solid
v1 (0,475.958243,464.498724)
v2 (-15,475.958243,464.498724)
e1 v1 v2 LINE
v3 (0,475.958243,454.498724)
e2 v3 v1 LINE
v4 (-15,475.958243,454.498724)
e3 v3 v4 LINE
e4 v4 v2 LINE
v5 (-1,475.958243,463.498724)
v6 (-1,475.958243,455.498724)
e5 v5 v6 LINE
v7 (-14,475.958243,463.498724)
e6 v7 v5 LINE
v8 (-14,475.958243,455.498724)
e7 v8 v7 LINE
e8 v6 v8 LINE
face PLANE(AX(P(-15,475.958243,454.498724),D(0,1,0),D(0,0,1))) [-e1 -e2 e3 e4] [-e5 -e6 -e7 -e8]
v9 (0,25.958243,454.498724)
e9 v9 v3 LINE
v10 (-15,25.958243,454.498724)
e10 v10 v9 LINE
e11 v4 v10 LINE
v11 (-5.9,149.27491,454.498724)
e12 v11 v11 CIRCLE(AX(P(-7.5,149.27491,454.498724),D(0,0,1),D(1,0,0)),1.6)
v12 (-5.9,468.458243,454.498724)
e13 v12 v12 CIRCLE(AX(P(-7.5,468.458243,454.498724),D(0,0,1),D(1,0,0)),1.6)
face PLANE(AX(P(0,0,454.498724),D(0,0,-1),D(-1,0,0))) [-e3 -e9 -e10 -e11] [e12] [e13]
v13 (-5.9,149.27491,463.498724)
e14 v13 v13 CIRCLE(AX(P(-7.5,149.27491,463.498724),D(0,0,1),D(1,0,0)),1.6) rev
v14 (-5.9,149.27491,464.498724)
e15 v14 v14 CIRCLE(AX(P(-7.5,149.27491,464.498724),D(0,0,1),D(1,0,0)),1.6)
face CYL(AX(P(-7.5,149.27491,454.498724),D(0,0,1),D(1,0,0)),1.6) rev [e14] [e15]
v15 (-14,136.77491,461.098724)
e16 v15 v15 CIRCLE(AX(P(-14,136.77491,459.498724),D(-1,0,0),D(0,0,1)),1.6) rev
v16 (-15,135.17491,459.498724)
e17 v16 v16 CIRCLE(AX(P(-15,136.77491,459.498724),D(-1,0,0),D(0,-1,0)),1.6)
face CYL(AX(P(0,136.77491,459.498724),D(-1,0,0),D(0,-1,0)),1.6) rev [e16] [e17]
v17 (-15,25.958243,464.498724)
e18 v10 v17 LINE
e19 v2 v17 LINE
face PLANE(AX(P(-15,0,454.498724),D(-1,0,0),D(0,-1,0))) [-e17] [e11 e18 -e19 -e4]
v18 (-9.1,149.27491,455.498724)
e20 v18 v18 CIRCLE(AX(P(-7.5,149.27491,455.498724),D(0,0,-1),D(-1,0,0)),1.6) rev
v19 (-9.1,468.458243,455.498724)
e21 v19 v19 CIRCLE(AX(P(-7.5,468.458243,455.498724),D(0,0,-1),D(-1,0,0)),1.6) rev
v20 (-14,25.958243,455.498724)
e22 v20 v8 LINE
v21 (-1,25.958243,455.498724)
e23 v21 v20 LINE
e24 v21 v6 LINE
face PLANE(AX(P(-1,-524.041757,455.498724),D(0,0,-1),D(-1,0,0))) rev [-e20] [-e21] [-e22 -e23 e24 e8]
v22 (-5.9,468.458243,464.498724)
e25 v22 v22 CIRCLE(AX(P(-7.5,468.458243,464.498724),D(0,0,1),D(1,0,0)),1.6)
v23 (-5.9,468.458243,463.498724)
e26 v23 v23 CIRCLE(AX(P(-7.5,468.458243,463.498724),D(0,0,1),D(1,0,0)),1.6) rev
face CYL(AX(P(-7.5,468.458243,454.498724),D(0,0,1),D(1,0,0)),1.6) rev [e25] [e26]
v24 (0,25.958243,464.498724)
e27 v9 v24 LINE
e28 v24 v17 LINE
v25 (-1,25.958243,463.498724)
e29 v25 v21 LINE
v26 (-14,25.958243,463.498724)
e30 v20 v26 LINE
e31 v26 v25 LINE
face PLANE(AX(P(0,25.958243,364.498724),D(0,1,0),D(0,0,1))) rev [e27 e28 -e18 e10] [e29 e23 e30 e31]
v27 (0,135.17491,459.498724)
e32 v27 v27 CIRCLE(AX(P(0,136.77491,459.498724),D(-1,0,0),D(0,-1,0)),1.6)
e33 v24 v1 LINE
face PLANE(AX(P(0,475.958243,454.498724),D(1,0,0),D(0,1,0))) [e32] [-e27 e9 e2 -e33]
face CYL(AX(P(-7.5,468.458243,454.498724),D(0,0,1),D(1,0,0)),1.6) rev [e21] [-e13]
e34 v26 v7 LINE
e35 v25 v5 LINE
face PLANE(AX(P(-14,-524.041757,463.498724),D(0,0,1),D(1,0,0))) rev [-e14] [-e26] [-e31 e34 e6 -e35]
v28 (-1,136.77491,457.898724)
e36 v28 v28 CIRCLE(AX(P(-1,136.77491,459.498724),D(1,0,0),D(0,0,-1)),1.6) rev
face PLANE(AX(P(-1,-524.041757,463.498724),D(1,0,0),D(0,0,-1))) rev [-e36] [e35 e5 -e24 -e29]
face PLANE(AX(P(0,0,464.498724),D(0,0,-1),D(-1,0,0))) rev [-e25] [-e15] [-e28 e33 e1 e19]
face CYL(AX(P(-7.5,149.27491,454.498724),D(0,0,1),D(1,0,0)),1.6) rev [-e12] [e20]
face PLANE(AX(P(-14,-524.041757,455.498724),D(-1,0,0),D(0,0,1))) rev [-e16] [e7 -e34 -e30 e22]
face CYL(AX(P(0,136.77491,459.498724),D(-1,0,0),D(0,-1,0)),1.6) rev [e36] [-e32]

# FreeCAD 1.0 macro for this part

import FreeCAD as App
import Part
import Sketcher

V = App.Vector
Q = App.Units.Quantity

doc = App.newDocument("Part")
body = doc.addObject("PartDesign::Body", "Body")

sketch1 = body.newObject("Sketcher::SketchObject", "Sketch")
sketch1.AttachmentSupport = (doc.getObject("XY_Plane"), [""])
sketch1.MapMode = "FlatFace"
sketch1.AttachmentOffset = App.Placement(V(0, 0, 464.498724), App.Rotation())
sketch1.addGeometry([
    Part.LineSegment(V(-15, 476, 0), V(-15, 0, 0)),
    Part.LineSegment(V(-15, 0, 0), V(0, 0, 0)),
    Part.LineSegment(V(0, 0, 0), V(0, 476, 0)),
    Part.LineSegment(V(0, 476, 0), V(-15, 476, 0)),
    Part.Circle(V(-7.5, 149.3, 0), V(0, 0, 1), 1.6),
    Part.Circle(V(-7.5, 468.5, 0), V(0, 0, 1), 1.6),
], False)
sketch1.addConstraint([
    Sketcher.Constraint("Coincident", 0, 2, 1, 1),
    Sketcher.Constraint("Coincident", 1, 2, 2, 1),
    Sketcher.Constraint("Coincident", 2, 2, 3, 1),
    Sketcher.Constraint("Coincident", 3, 2, 0, 1),
    Sketcher.Constraint("Vertical", 0),
    Sketcher.Constraint("Horizontal", 1),
    Sketcher.Constraint("Vertical", 2),
    Sketcher.Constraint("Horizontal", 3),
    Sketcher.Constraint("Coincident", 1, 2, -1, 1),
    Sketcher.Constraint("Equal", 4, 5),
    Sketcher.Constraint("Vertical", 4, 3, 5, 3),
    Sketcher.Constraint("Diameter", 4, Q("3.2 mm")),
    Sketcher.Constraint("DistanceX", 1, 1, 1, 2, Q("15 mm")),
    Sketcher.Constraint("DistanceX", 4, 3, -1, 1, Q("7.5 mm")),
    Sketcher.Constraint("DistanceY", 5, 3, 2, 2, Q("7.5 mm")),
    Sketcher.Constraint("DistanceY", 0, 2, 0, 1, Q("475.958243 mm")),
    Sketcher.Constraint("DistanceY", -1, 1, 4, 3, Q("149.27491 mm")),
])
pad1 = body.newObject("PartDesign::Pad", "Pad")
pad1.Profile = sketch1
pad1.Length = 10
pad1.Reversed = True

sketch2 = body.newObject("Sketcher::SketchObject", "Sketch001")
sketch2.AttachmentSupport = (doc.getObject("XY_Plane"), [""])
sketch2.MapMode = "FlatFace"
sketch2.AttachmentOffset = App.Placement(V(0, 0, 464.498724), App.Rotation())
sketch2.addGeometry([
    Part.LineSegment(V(-15, 26, 0), V(-15, 0, 0)),
    Part.LineSegment(V(-15, 0, 0), V(0, 0, 0)),
    Part.LineSegment(V(0, 0, 0), V(0, 26, 0)),
    Part.LineSegment(V(0, 26, 0), V(-15, 26, 0)),
], False)
sketch2.addConstraint([
    Sketcher.Constraint("Coincident", 0, 2, 1, 1),
    Sketcher.Constraint("Coincident", 1, 2, 2, 1),
    Sketcher.Constraint("Coincident", 2, 2, 3, 1),
    Sketcher.Constraint("Coincident", 3, 2, 0, 1),
    Sketcher.Constraint("Vertical", 0),
    Sketcher.Constraint("Horizontal", 1),
    Sketcher.Constraint("Vertical", 2),
    Sketcher.Constraint("Horizontal", 3),
    Sketcher.Constraint("Coincident", 1, 2, -1, 1),
    Sketcher.Constraint("DistanceX", 1, 1, 1, 2, Q("15 mm")),
    Sketcher.Constraint("DistanceY", 0, 2, 0, 1, Q("25.958243 mm")),
])
pocket1 = body.newObject("PartDesign::Pocket", "Pocket")
pocket1.Profile = sketch2
pocket1.Length = 100

sketch3 = body.newObject("Sketcher::SketchObject", "Sketch002")
sketch3.AttachmentSupport = (doc.getObject("YZ_Plane"), [""])
sketch3.MapMode = "FlatFace"
sketch3.AttachmentOffset = App.Placement(V(0, 0, -15), App.Rotation())
sketch3.addGeometry(Part.Circle(V(136.8, 459.5, 0), V(0, 0, 1), 1.6), False)
sketch3.addConstraint([
    Sketcher.Constraint("Diameter", 0, Q("3.2 mm")),
    Sketcher.Constraint("DistanceX", -1, 1, 0, 3, Q("136.77491 mm")),
    Sketcher.Constraint("DistanceY", -1, 1, 0, 3, Q("459.498724 mm")),
])
pocket2 = body.newObject("PartDesign::Pocket", "Pocket001")
pocket2.Profile = sketch3
pocket2.Length = 15
pocket2.Reversed = True

sketch4 = body.newObject("Sketcher::SketchObject", "Sketch003")
sketch4.AttachmentSupport = (doc.getObject("XZ_Plane"), [""])
sketch4.MapMode = "FlatFace"
sketch4.AttachmentOffset = App.Placement(V(0, 0, -475.958243), App.Rotation())
sketch4.addGeometry([
    Part.LineSegment(V(-14, 455, 0), V(-14, 463, 0)),
    Part.LineSegment(V(-14, 463, 0), V(-1, 463, 0)),
    Part.LineSegment(V(-1, 463, 0), V(-1, 455, 0)),
    Part.LineSegment(V(-1, 455, 0), V(-14, 455, 0)),
], False)
sketch4.addConstraint([
    Sketcher.Constraint("Coincident", 0, 2, 1, 1),
    Sketcher.Constraint("Coincident", 1, 2, 2, 1),
    Sketcher.Constraint("Coincident", 2, 2, 3, 1),
    Sketcher.Constraint("Coincident", 3, 2, 0, 1),
    Sketcher.Constraint("Vertical", 0),
    Sketcher.Constraint("Horizontal", 1),
    Sketcher.Constraint("Vertical", 2),
    Sketcher.Constraint("Horizontal", 3),
    Sketcher.Constraint("DistanceX", 1, 1, 1, 2, Q("13 mm")),
    Sketcher.Constraint("DistanceY", 0, 1, 0, 2, Q("8 mm")),
    Sketcher.Constraint("DistanceX", 0, 2, -1, 1, Q("14 mm")),
    Sketcher.Constraint("DistanceY", -1, 1, 0, 2, Q("463.498724 mm")),
])
pocket3 = body.newObject("PartDesign::Pocket", "Pocket002")
pocket3.Profile = sketch4
pocket3.Length = 1000
pocket3.Reversed = True

doc.recompute()
